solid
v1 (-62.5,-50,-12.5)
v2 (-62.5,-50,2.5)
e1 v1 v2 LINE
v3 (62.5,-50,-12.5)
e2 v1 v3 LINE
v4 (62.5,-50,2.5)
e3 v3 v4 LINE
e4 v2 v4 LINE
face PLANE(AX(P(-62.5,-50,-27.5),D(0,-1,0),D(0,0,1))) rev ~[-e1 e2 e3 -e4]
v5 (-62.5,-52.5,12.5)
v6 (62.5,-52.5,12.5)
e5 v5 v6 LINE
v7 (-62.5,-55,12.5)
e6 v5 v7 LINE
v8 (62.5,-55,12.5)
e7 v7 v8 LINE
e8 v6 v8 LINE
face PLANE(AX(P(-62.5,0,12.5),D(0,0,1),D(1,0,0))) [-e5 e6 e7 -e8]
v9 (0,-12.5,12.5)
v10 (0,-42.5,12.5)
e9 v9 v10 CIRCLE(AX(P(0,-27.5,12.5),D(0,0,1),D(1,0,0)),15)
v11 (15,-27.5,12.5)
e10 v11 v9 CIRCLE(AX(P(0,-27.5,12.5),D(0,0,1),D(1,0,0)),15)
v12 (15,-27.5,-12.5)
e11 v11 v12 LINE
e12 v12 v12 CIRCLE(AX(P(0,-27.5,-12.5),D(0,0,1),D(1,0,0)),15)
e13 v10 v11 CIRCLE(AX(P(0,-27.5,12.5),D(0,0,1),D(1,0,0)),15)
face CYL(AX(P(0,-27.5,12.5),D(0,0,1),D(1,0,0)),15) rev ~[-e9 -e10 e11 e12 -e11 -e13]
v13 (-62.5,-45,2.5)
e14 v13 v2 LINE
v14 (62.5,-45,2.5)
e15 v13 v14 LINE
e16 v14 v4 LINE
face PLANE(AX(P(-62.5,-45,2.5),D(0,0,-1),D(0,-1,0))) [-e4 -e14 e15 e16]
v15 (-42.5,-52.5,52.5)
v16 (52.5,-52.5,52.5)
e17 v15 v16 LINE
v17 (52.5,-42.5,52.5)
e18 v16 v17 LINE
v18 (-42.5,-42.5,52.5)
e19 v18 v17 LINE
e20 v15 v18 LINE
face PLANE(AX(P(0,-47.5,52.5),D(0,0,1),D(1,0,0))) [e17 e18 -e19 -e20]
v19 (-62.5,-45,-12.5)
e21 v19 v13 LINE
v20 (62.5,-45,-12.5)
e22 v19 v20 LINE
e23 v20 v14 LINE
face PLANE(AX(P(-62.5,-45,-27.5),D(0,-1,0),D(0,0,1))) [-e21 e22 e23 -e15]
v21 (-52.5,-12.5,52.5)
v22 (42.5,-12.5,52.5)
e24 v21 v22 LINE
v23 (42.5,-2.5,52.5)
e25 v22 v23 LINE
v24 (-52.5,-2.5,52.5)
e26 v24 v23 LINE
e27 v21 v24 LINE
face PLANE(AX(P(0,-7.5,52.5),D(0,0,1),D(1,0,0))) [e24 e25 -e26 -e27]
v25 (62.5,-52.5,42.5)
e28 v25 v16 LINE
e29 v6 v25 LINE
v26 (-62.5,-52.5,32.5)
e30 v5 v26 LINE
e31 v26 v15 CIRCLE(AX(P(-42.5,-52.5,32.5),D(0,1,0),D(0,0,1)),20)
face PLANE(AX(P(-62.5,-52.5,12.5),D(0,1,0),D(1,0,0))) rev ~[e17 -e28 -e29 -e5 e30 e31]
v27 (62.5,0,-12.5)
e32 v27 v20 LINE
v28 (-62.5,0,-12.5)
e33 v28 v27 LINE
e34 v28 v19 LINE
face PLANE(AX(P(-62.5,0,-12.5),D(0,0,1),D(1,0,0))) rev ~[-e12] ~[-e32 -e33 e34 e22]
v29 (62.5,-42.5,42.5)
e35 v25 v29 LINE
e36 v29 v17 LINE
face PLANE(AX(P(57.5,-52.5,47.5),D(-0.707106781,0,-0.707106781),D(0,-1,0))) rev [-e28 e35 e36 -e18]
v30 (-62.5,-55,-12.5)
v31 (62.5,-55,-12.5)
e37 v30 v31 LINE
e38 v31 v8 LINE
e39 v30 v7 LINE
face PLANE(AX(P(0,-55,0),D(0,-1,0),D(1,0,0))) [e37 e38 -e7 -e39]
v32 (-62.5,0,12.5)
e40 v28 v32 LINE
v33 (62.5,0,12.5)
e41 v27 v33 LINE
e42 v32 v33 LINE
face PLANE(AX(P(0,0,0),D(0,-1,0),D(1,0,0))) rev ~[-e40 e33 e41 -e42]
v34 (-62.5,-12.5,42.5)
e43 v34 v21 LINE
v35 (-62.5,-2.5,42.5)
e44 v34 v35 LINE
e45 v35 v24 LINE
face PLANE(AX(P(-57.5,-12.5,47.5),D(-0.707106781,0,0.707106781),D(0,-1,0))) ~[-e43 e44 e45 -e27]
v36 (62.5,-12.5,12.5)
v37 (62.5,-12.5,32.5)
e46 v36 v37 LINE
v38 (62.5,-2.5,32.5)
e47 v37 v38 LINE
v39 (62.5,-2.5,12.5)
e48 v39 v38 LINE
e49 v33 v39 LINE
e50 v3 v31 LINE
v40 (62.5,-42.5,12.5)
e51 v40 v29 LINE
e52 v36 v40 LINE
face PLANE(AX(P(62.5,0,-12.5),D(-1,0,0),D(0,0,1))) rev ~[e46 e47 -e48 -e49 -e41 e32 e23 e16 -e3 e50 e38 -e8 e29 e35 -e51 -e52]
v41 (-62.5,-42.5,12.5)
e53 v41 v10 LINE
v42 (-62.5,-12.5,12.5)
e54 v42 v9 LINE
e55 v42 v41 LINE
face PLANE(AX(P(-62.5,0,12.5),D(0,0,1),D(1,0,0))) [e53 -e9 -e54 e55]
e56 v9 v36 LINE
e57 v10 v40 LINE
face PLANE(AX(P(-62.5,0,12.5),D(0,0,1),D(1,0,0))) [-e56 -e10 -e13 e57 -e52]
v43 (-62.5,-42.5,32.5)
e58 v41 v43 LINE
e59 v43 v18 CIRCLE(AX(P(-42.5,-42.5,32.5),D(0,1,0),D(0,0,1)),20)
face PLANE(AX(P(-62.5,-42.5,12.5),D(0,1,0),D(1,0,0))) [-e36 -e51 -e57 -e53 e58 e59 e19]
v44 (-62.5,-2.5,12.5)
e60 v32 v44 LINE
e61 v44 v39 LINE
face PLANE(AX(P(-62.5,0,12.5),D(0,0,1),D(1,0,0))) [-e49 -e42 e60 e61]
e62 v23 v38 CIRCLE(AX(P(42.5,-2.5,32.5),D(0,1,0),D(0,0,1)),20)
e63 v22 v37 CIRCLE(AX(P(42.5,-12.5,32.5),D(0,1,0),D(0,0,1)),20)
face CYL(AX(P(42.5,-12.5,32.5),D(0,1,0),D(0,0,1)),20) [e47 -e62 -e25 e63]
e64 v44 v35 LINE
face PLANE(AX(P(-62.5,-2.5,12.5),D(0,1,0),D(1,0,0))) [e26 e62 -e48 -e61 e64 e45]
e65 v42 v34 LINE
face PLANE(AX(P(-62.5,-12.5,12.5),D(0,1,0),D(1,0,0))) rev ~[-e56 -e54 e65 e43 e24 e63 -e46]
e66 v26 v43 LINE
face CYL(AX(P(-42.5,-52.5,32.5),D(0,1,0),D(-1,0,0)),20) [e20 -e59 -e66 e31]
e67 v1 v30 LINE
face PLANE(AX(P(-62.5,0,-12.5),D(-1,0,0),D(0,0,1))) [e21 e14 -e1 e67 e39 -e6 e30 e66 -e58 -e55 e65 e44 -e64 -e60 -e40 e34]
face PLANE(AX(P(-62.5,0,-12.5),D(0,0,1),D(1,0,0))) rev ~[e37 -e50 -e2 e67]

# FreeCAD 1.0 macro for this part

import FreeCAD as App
import Part
import Sketcher


def edges_at(feature, points):
    """Names of the edges that pass closest to the given points."""
    edges = feature.Shape.Edges
    near = lambda p: min(range(len(edges)), key=lambda i: edges[i].distToShape(Part.Vertex(*p))[0])
    return sorted({f"Edge{near(p) + 1}" for p in points})


def add_polygon(sketch, points):
    """Adds a closed chain of lines whose ends are joined by coincident constraints."""
    first, n = sketch.GeometryCount, len(points)
    for a, b in zip(points, points[1:] + points[:1]):
        sketch.addGeometry(Part.LineSegment(App.Vector(*a, 0), App.Vector(*b, 0)), False)
    for i in range(n):
        sketch.addConstraint(Sketcher.Constraint("Coincident", first + i, 2, first + (i + 1) % n, 1))

doc = App.newDocument("Part")
body = doc.addObject("PartDesign::Body", "Body")

# Sketch on XZ plane
sketch1 = body.newObject("Sketcher::SketchObject", "Sketch")
sketch1.AttachmentSupport = (doc.getObject("XZ_Plane"), [""])
sketch1.MapMode = "FlatFace"
add_polygon(sketch1, [(-62, 12), (-62, -12), (62, -12), (62, 12)])  # lines 0-3
sketch1.addConstraint([
    Sketcher.Constraint("Vertical", 0),
    Sketcher.Constraint("Horizontal", 1),
    Sketcher.Constraint("Vertical", 2),
    Sketcher.Constraint("Horizontal", 3),
    Sketcher.Constraint("Symmetric", 0, 2, 2, 2, -1, 1),
    Sketcher.Constraint("DistanceX", 1, 1, 1, 2, 125.0),
    Sketcher.Constraint("DistanceY", 0, 2, 0, 1, 25.0),
])
pad1 = body.newObject("PartDesign::Pad", "Pad")
pad1.Profile = sketch1
pad1.Length = 55

# Sketch on YZ plane
sketch2 = body.newObject("Sketcher::SketchObject", "Sketch001")
sketch2.AttachmentSupport = (doc.getObject("YZ_Plane"), [""])
sketch2.MapMode = "FlatFace"
sketch2.AttachmentOffset = App.Placement(App.Vector(0, 0, -62.5), App.Rotation())
add_polygon(sketch2, [(-45, 2), (-45, -28), (-50, -28), (-50, 2)])  # lines 0-3
sketch2.addConstraint([
    Sketcher.Constraint("Vertical", 0),
    Sketcher.Constraint("Horizontal", 1),
    Sketcher.Constraint("Vertical", 2),
    Sketcher.Constraint("Horizontal", 3),
    Sketcher.Constraint("DistanceX", 1, 2, 1, 1, 5.0),
    Sketcher.Constraint("DistanceY", 0, 2, 0, 1, 30.0),
    Sketcher.Constraint("DistanceX", 0, 2, -1, 1, 45.0),
    Sketcher.Constraint("DistanceY", 0, 2, -1, 1, 27.5),
])
pocket1 = body.newObject("PartDesign::Pocket", "Pocket")
pocket1.Profile = sketch2
pocket1.Type = "ThroughAll"
pocket1.Reversed = True

# Sketch on XY plane
sketch3 = body.newObject("Sketcher::SketchObject", "Sketch002")
sketch3.AttachmentSupport = (doc.getObject("XY_Plane"), [""])
sketch3.MapMode = "FlatFace"
sketch3.AttachmentOffset = App.Placement(App.Vector(0, 0, 12.5), App.Rotation())
add_polygon(sketch3, [(-62, -42), (-62, -52), (62, -52), (62, -42)])  # lines 0-3
add_polygon(sketch3, [(-62, -2), (-62, -12), (62, -12), (62, -2)])  # lines 4-7
sketch3.addConstraint([
    Sketcher.Constraint("Vertical", 0),
    Sketcher.Constraint("Horizontal", 1),
    Sketcher.Constraint("Vertical", 2),
    Sketcher.Constraint("Horizontal", 3),
    Sketcher.Constraint("Vertical", 4),
    Sketcher.Constraint("Horizontal", 5),
    Sketcher.Constraint("Vertical", 6),
    Sketcher.Constraint("Horizontal", 7),
    Sketcher.Constraint("Vertical", 3, 2, 4, 2),
    Sketcher.Constraint("Vertical", 2, 2, 5, 2),
    Sketcher.Constraint("Equal", 2, 4),
    Sketcher.Constraint("DistanceX", 1, 1, 1, 2, 125.0),
    Sketcher.Constraint("DistanceY", 0, 2, 0, 1, 10.0),
    Sketcher.Constraint("DistanceY", 3, 2, 4, 2, 30.0),
    Sketcher.Constraint("DistanceX", 0, 2, -1, 1, 62.5),
    Sketcher.Constraint("DistanceY", 0, 2, -1, 1, 52.5),
])
pad2 = body.newObject("PartDesign::Pad", "Pad001")
pad2.Profile = sketch3
pad2.Length = 40
doc.recompute()

fillet = body.newObject("PartDesign::Fillet", "Fillet")
fillet.Base = (pad2, edges_at(pad2, [(-62.5, -47.5, 52.5)]))
fillet.Radius = 20
doc.recompute()

fillet2 = body.newObject("PartDesign::Fillet", "Fillet001")
fillet2.Base = (fillet, edges_at(fillet, [(62.5, -7.5, 52.5)]))
fillet2.Radius = 20
doc.recompute()

chamfer = body.newObject("PartDesign::Chamfer", "Chamfer")
chamfer.Base = (fillet2, edges_at(fillet2, [(62.5, -47.5, 52.5)]))
chamfer.Size = 10
doc.recompute()

chamfer2 = body.newObject("PartDesign::Chamfer", "Chamfer001")
chamfer2.Base = (chamfer, edges_at(chamfer, [(-62.5, -7.5, 52.5)]))
chamfer2.Size = 10

# Sketch on XY plane
sketch4 = body.newObject("Sketcher::SketchObject", "Sketch003")
sketch4.AttachmentSupport = (doc.getObject("XY_Plane"), [""])
sketch4.MapMode = "FlatFace"
sketch4.AttachmentOffset = App.Placement(App.Vector(0, 0, 12.5), App.Rotation())
sketch4.addGeometry(Part.Circle(App.Vector(0, -28, 0), App.Vector(0, 0, 1), 15), False)
sketch4.addConstraint([
    Sketcher.Constraint("PointOnObject", 0, 3, -2),
    Sketcher.Constraint("Diameter", 0, 30.0),
    Sketcher.Constraint("DistanceY", 0, 3, -1, 1, 27.5),
])
pocket2 = body.newObject("PartDesign::Pocket", "Pocket001")
pocket2.Profile = sketch4
pocket2.Type = "ThroughAll"

doc.recompute()
